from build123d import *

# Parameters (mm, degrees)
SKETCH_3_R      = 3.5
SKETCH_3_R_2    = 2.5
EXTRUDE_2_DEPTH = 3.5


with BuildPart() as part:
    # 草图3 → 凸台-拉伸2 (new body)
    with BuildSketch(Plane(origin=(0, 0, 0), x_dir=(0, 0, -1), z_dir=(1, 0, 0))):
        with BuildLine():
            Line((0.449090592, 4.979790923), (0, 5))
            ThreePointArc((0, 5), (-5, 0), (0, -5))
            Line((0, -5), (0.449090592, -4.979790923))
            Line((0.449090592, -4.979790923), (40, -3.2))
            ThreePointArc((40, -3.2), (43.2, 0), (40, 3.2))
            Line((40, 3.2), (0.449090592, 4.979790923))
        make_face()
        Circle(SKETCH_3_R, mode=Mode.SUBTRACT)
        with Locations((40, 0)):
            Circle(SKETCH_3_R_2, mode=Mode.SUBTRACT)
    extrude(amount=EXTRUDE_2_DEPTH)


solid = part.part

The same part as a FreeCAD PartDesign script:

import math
import FreeCAD as App
import Part
import Sketcher
from FreeCAD import Vector

doc = App.newDocument("Part")
body = doc.addObject("PartDesign::Body", "Body")

# Sketch on YZ plane
sketch1 = body.newObject("Sketcher::SketchObject", "Sketch")
sketch1.AttachmentSupport = (doc.getObject("YZ_Plane"), [""])
sketch1.MapMode = "FlatFace"
sketch1.addGeometry([
    Part.LineSegment(Vector(4.98, -0.45, 0), Vector(5, 0, 0)),  # 0
    Part.ArcOfCircle(Part.Circle(Vector(0, 0, 0), Vector(0, 0, 1), 5), math.radians(0), math.radians(180)),  # 1
    Part.LineSegment(Vector(-5, 0, 0), Vector(-4.98, -0.45, 0)),  # 2
    Part.LineSegment(Vector(-4.98, -0.45, 0), Vector(-3.2, -40, 0)),  # 3
    Part.ArcOfCircle(Part.Circle(Vector(0, -40, 0), Vector(0, 0, 1), 3.2), math.radians(180), math.radians(360)),  # 4
    Part.LineSegment(Vector(3.2, -40, 0), Vector(4.98, -0.45, 0)),  # 5
    Part.Circle(Vector(0, 0, 0), Vector(0, 0, 1), 3.5),  # 6
    Part.Circle(Vector(0, -40, 0), Vector(0, 0, 1), 2.5),  # 7
], False)
sketch1.addConstraint([
    Sketcher.Constraint("Coincident", 0, 2, 1, 1),
    Sketcher.Constraint("Coincident", 1, 2, 2, 1),
    Sketcher.Constraint("Coincident", 2, 2, 3, 1),
    Sketcher.Constraint("Coincident", 3, 2, 4, 1),
    Sketcher.Constraint("Coincident", 4, 2, 5, 1),
    Sketcher.Constraint("Coincident", 5, 2, 0, 1),
    Sketcher.Constraint("Coincident", 1, 3, -1, 1),
    Sketcher.Constraint("Coincident", 6, 3, -1, 1),
    Sketcher.Constraint("Coincident", 7, 3, 4, 3),
    Sketcher.Constraint("Symmetric", 3, 2, 4, 2, -2),
    Sketcher.Constraint("Symmetric", 2, 2, 5, 2, -2),
    Sketcher.Constraint("PointOnObject", 0, 2, -1),
    Sketcher.Constraint("PointOnObject", 1, 2, -1),
    Sketcher.Constraint("Parallel", 2, 3),
    Sketcher.Constraint("Horizontal", 7, 3, 3, 2),
    Sketcher.Constraint("Diameter", 6, 7.0),
    Sketcher.Constraint("Diameter", 7, 5.0),
    Sketcher.Constraint("Radius", 1, 5.0),
    Sketcher.Constraint("Radius", 4, 3.2),
    Sketcher.Constraint("DistanceY", 4, 3, -1, 1, 40.0),
    Sketcher.Constraint("DistanceX", 2, 2, -1, 1, 4.979791),
])
pad1 = body.newObject("PartDesign::Pad", "Pad")
pad1.Profile = sketch1
pad1.Length = 3.5

doc.recompute()
